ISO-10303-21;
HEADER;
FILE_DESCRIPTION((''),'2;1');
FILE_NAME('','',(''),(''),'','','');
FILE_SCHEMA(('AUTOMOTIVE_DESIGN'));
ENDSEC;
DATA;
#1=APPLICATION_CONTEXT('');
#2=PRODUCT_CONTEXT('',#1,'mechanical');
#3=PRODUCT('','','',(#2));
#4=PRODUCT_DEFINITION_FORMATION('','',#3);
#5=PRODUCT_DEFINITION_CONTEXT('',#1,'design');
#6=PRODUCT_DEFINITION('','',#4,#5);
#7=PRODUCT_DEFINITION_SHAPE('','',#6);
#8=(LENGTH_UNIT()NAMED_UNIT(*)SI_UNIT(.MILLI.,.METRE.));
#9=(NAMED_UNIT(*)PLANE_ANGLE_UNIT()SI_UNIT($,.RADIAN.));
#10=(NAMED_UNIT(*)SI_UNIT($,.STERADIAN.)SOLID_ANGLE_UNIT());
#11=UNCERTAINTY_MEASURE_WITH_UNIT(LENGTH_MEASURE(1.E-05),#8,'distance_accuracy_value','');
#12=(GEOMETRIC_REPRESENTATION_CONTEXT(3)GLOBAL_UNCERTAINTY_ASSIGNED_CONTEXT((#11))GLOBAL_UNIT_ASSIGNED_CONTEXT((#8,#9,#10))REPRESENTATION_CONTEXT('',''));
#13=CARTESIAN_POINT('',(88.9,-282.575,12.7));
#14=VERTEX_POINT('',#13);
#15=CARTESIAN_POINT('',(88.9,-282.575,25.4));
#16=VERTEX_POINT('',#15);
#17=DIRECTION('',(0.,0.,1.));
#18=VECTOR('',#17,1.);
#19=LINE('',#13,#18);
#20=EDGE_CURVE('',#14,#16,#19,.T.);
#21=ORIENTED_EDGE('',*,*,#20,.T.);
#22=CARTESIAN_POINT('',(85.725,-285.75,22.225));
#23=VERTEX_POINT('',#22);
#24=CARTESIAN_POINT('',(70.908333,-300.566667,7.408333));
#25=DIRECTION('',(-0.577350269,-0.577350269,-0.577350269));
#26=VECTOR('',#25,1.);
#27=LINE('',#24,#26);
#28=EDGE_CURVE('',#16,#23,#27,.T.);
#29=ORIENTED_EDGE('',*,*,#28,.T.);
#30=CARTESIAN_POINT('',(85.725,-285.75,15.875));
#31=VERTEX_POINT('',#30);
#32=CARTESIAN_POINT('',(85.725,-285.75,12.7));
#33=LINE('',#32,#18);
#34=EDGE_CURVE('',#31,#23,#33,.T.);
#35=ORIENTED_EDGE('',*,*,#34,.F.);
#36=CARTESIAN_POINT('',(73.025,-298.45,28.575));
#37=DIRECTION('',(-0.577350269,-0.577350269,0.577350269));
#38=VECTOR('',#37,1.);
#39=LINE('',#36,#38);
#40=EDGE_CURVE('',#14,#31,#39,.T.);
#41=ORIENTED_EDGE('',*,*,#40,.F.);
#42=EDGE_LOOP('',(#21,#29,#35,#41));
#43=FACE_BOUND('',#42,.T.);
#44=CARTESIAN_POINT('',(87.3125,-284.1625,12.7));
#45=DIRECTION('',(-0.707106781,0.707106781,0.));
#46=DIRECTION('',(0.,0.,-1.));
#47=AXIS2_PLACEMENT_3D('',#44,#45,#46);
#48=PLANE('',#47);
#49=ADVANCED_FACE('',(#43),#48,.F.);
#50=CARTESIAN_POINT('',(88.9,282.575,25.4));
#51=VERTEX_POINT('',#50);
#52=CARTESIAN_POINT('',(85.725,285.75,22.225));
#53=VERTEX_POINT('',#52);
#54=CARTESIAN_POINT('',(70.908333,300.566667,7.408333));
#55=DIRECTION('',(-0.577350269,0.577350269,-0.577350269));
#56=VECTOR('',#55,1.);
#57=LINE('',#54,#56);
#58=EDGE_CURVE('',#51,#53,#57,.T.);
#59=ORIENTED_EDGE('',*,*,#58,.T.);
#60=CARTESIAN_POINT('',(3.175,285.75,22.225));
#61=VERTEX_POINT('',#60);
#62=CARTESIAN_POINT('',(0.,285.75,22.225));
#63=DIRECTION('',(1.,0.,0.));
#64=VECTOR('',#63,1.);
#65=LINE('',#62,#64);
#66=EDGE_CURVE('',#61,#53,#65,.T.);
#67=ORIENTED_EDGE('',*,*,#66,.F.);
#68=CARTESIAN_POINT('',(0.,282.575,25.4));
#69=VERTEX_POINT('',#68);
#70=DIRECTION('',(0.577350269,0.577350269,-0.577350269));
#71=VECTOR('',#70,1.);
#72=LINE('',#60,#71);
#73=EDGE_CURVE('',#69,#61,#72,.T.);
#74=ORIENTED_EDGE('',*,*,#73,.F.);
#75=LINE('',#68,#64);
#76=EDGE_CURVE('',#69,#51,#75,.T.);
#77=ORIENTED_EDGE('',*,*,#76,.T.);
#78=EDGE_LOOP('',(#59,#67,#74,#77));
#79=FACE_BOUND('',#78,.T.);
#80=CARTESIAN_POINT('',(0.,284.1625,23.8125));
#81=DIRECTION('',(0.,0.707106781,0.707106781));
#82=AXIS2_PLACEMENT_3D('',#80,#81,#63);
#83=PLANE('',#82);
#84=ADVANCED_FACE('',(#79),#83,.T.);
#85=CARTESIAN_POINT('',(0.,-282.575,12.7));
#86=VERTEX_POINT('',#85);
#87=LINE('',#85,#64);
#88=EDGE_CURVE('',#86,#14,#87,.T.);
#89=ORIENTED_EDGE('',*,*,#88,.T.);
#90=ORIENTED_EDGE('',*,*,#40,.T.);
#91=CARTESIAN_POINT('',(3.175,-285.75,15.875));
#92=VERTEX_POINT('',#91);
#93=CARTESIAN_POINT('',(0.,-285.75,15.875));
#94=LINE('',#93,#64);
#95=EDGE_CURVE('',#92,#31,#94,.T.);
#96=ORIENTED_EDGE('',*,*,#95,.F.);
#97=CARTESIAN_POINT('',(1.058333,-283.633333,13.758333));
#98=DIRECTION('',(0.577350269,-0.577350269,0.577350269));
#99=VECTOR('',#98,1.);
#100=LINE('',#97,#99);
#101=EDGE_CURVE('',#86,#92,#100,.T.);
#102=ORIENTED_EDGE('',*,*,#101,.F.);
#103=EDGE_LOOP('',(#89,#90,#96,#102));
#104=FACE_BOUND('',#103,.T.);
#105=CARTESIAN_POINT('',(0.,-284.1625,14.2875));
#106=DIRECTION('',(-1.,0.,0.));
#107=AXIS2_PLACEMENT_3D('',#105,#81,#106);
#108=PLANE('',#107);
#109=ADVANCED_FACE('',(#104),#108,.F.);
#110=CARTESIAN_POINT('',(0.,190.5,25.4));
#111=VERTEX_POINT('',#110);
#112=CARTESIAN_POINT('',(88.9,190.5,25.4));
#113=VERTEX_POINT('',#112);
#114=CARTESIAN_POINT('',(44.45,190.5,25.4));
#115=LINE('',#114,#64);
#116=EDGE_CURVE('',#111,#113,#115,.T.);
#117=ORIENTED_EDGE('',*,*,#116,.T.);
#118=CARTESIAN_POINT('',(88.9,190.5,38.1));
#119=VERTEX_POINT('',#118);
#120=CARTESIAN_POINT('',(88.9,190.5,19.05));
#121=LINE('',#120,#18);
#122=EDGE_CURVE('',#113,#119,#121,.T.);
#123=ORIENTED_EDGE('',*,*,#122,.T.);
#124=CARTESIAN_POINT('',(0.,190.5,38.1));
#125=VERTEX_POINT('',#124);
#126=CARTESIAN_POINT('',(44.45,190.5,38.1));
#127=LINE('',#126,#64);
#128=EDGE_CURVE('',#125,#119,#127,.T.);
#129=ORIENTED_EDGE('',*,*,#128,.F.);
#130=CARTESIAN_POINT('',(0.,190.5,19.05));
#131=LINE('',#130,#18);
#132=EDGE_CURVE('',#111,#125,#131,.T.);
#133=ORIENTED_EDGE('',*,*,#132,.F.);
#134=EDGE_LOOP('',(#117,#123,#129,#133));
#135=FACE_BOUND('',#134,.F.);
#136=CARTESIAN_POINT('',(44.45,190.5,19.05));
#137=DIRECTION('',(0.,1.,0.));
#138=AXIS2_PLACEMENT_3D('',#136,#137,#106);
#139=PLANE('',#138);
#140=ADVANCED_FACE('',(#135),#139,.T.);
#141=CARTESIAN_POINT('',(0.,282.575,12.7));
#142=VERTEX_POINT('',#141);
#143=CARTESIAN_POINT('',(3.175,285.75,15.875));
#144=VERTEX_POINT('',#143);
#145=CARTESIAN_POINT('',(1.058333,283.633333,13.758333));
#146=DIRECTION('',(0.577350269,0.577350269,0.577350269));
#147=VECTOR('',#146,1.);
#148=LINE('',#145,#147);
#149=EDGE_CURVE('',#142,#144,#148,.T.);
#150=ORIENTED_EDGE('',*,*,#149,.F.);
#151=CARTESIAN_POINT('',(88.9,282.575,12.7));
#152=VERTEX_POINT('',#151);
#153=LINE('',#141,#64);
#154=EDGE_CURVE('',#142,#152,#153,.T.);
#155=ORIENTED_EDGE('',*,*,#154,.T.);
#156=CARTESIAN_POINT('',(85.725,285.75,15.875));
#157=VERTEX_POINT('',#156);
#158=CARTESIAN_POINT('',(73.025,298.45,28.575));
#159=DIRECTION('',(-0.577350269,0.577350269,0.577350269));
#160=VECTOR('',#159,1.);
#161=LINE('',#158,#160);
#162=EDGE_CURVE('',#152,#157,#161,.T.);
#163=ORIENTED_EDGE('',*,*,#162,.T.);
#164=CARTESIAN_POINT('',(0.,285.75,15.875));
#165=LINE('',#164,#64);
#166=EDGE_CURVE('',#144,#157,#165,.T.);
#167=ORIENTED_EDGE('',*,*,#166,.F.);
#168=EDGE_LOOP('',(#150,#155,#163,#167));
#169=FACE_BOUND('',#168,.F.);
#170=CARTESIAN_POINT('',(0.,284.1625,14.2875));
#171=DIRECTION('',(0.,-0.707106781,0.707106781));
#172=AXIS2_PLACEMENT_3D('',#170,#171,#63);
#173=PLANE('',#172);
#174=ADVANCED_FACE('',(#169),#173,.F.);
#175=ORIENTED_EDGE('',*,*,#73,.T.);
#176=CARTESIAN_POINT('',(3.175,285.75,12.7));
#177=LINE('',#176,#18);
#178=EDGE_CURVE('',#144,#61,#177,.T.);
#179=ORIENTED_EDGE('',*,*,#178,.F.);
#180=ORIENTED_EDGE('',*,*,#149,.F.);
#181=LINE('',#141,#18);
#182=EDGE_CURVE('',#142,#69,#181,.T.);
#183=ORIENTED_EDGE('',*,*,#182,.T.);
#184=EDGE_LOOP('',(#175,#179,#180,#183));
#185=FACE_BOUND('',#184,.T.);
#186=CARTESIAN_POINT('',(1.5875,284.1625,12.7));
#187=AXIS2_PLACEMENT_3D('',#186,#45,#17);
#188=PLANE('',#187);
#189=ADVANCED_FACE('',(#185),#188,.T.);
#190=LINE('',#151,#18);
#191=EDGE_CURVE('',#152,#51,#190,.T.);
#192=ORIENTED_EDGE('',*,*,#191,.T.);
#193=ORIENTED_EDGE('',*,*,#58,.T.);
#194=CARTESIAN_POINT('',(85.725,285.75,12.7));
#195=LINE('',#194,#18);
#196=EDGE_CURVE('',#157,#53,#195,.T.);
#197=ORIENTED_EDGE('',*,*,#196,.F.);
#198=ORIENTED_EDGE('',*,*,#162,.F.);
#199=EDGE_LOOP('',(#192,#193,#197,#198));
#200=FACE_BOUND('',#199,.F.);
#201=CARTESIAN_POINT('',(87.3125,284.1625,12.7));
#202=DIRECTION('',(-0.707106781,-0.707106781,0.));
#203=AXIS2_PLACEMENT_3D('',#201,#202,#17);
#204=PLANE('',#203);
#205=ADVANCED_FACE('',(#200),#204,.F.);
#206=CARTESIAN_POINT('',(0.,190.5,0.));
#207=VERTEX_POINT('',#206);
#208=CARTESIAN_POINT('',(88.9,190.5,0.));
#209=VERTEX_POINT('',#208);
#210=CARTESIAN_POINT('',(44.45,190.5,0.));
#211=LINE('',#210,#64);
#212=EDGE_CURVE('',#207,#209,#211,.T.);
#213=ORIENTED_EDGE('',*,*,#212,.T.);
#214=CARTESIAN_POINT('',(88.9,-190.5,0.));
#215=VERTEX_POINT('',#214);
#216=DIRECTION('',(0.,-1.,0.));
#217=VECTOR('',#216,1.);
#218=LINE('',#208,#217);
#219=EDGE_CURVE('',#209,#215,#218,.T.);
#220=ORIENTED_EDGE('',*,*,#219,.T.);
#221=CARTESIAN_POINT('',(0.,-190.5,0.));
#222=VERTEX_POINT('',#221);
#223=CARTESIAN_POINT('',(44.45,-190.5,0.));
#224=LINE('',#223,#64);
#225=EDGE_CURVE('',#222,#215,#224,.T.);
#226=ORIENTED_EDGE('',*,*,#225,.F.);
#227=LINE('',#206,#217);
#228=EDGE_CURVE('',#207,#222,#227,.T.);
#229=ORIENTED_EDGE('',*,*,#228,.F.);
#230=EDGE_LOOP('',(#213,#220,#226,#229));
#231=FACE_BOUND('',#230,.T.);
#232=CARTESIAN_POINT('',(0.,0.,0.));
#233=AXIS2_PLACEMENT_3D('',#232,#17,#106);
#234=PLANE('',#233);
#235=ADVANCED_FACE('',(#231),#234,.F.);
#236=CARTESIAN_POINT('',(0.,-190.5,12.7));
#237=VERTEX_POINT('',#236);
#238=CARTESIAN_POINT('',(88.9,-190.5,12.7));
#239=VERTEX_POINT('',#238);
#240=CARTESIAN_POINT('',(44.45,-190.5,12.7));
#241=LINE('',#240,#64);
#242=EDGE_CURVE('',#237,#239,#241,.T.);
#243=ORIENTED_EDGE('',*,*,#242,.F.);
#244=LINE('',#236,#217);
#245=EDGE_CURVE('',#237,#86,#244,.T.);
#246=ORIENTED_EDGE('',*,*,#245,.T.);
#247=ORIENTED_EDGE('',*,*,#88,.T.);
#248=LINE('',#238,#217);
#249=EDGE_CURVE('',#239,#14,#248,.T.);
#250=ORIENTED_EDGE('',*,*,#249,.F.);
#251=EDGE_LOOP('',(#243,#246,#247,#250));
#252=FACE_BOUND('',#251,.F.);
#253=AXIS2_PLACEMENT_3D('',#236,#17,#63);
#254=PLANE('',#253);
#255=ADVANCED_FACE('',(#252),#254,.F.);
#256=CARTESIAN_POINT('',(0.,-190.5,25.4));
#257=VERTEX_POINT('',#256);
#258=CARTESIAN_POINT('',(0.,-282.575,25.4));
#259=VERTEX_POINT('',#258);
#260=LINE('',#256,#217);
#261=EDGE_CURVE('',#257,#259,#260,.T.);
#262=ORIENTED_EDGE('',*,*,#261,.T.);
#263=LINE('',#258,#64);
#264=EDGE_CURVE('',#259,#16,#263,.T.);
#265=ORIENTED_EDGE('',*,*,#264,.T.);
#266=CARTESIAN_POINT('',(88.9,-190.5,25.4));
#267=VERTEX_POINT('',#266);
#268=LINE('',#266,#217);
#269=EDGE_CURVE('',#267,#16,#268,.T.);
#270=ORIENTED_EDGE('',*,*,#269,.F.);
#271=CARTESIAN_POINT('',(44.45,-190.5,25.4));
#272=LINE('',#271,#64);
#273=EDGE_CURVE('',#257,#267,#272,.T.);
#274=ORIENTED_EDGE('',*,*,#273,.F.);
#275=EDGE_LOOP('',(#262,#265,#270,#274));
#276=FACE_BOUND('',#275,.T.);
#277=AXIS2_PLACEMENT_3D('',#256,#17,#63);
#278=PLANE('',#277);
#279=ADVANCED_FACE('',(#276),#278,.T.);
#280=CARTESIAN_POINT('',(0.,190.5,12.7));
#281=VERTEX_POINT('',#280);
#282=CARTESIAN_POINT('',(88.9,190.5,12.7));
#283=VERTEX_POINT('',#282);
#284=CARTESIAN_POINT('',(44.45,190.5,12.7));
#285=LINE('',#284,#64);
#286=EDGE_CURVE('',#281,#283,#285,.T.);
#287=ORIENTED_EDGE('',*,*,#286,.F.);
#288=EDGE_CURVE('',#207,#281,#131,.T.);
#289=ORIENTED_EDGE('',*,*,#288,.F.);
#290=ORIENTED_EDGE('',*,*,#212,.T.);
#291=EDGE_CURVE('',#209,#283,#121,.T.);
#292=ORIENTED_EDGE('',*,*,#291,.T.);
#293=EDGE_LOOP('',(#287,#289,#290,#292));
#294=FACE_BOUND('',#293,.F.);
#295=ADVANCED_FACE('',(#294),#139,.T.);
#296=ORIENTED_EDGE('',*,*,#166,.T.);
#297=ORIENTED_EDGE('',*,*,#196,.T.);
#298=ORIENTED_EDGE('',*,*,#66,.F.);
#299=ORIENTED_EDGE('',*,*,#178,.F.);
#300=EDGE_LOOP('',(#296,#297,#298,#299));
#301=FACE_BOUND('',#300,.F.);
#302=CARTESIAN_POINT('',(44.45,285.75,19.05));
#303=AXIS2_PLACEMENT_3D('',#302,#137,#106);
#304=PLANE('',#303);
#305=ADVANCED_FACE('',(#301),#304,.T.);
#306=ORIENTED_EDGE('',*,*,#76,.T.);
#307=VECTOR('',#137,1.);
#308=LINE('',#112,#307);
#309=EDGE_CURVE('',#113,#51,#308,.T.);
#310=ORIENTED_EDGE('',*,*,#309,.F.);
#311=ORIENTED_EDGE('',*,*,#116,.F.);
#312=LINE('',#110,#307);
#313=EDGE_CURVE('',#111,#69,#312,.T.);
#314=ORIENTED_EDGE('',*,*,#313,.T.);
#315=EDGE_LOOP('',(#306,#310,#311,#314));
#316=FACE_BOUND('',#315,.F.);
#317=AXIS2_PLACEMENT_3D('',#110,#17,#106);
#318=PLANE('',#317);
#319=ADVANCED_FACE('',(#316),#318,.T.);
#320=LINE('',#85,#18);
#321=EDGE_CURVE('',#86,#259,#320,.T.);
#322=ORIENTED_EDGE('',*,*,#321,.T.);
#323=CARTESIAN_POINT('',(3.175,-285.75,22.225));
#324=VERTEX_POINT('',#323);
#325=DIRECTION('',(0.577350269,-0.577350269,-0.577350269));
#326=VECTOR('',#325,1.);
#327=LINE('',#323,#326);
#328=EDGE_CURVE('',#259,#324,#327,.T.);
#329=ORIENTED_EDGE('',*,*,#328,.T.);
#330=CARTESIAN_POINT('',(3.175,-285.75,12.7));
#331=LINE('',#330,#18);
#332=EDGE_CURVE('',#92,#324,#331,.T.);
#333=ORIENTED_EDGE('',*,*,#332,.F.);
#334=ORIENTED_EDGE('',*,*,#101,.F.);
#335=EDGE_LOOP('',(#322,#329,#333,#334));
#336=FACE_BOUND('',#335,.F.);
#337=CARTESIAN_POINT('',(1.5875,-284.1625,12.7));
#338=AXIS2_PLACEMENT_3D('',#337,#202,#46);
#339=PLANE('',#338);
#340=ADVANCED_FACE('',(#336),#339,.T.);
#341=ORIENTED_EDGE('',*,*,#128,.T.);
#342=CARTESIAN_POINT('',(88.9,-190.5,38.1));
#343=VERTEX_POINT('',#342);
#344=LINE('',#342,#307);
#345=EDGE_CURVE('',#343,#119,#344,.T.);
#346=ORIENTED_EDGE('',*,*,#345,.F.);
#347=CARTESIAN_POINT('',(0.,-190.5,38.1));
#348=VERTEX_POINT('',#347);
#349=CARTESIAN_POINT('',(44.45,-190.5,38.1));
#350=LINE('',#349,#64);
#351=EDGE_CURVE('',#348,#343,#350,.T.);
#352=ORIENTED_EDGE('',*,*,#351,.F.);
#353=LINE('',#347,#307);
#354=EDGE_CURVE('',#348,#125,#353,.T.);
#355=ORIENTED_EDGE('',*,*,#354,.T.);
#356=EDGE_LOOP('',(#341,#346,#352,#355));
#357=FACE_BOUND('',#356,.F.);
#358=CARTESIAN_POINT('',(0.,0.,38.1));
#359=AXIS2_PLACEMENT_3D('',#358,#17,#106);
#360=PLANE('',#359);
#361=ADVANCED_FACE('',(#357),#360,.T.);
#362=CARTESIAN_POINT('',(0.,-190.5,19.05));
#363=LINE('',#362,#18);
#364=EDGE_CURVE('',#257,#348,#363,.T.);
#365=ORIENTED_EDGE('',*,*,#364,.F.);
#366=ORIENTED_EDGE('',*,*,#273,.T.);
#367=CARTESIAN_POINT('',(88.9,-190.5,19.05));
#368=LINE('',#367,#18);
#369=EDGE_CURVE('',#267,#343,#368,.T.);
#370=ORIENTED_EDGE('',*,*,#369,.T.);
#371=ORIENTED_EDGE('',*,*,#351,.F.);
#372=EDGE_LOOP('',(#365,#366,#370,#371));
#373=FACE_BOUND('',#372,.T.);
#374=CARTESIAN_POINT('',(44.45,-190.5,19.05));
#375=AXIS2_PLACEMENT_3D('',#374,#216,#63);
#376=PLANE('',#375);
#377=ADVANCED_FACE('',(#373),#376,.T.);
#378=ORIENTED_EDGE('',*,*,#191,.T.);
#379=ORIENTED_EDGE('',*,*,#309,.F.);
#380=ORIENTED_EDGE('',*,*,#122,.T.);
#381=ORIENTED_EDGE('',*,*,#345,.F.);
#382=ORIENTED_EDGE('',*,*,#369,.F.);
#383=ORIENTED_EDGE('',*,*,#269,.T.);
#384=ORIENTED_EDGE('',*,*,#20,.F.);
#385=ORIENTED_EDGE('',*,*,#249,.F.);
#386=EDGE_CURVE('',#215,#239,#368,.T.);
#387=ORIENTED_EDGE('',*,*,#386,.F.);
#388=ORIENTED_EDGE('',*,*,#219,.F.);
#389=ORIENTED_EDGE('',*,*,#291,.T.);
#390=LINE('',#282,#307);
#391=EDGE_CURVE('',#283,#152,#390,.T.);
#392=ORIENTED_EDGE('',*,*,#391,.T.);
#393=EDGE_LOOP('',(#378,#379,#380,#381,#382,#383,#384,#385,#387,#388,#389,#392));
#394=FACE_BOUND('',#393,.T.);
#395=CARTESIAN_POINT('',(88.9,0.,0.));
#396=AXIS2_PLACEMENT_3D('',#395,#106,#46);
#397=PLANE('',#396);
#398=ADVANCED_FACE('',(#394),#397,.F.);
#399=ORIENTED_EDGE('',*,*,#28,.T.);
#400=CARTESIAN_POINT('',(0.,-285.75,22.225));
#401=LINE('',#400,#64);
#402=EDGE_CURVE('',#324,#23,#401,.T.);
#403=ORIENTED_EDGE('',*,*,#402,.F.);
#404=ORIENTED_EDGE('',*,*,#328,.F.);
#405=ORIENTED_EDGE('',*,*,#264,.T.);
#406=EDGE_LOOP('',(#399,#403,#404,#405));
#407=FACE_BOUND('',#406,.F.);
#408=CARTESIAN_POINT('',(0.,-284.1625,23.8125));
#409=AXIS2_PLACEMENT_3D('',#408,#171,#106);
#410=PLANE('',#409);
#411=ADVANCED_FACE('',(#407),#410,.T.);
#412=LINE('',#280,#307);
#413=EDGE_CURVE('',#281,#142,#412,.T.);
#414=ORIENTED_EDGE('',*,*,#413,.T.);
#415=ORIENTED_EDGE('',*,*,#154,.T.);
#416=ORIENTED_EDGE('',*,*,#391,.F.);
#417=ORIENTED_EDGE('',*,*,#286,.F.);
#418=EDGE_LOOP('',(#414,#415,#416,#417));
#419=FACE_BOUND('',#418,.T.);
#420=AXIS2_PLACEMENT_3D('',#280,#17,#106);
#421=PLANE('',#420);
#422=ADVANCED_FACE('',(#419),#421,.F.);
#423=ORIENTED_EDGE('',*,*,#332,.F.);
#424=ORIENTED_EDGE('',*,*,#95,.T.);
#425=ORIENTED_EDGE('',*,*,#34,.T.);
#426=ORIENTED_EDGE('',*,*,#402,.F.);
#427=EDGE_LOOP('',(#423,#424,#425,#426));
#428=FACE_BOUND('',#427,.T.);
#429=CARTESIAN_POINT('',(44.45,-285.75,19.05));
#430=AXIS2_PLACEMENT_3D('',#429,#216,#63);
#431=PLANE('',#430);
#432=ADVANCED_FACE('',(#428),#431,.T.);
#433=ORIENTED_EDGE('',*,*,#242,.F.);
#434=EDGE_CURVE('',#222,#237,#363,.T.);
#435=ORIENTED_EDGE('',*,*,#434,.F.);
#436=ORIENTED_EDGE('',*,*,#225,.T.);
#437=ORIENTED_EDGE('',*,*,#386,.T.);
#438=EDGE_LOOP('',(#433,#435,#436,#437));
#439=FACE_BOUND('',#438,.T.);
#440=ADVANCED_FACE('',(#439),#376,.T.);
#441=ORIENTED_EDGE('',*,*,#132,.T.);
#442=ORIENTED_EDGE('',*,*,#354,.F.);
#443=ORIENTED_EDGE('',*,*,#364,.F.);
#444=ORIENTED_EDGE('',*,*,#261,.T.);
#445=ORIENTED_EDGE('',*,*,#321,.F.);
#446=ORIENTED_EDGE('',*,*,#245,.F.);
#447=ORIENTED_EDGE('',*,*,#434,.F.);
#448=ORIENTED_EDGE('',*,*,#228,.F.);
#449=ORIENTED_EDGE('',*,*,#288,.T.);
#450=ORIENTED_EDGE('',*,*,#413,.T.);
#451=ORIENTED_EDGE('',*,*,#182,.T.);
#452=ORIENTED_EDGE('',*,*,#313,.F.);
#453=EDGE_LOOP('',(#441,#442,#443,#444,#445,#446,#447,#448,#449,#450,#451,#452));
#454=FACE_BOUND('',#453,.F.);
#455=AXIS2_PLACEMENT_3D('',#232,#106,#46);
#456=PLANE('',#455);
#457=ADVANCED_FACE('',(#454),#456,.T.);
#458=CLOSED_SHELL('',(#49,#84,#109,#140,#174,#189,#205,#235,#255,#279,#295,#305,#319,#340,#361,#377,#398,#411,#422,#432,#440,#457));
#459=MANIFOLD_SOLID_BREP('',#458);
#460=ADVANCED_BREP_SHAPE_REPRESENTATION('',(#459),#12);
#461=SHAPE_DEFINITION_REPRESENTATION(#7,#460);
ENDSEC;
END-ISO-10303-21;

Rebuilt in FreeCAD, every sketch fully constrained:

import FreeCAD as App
import Part
import Sketcher
Q = App.Units.Quantity


def edges_at(feature, points):
    """Names of the edges that pass closest to the given points."""
    edges = feature.Shape.Edges
    near = lambda p: min(range(len(edges)), key=lambda i: edges[i].distToShape(Part.Vertex(*p))[0])
    return sorted({f"Edge{near(p) + 1}" for p in points})


def add_polygon(sketch, points):
    """Adds a closed chain of lines whose ends are joined by coincident constraints."""
    first, n = sketch.GeometryCount, len(points)
    for a, b in zip(points, points[1:] + points[:1]):
        sketch.addGeometry(Part.LineSegment(App.Vector(*a, 0), App.Vector(*b, 0)), False)
    for i in range(n):
        sketch.addConstraint(Sketcher.Constraint("Coincident", first + i, 2, first + (i + 1) % n, 1))

doc = App.newDocument("Part")
body = doc.addObject("PartDesign::Body", "Body")

sketch1 = body.newObject("Sketcher::SketchObject", "Sketch")
sketch1.AttachmentSupport = (doc.getObject("XZ_Plane"), [""])
sketch1.MapMode = "FlatFace"
add_polygon(sketch1, [(0, 38), (0, 0), (89, 0), (89, 38)])
sketch1.addConstraint([
    Sketcher.Constraint("Vertical", 0),
    Sketcher.Constraint("Horizontal", 1),
    Sketcher.Constraint("Vertical", 2),
    Sketcher.Constraint("Horizontal", 3),
    Sketcher.Constraint("Coincident", 0, 2, -1, 1),
    Sketcher.Constraint("DistanceX", 1, 1, 1, 2, Q("3.5 in")),
    Sketcher.Constraint("DistanceY", 0, 2, 0, 1, Q("1.5 in")),
])
pad1 = body.newObject("PartDesign::Pad", "Pad")
pad1.Profile = sketch1
pad1.Length = Q("7.5 in")

sketch2 = body.newObject("Sketcher::SketchObject", "Sketch001")
sketch2.AttachmentSupport = (doc.getObject("XZ_Plane"), [""])
sketch2.MapMode = "FlatFace"
sketch2.AttachmentOffset = App.Placement(App.Vector(0, 0, 7.5 * 25.4), App.Rotation())
add_polygon(sketch2, [(0, 25), (0, 13), (89, 13), (89, 25)])
sketch2.addConstraint([
    Sketcher.Constraint("Vertical", 0),
    Sketcher.Constraint("Horizontal", 1),
    Sketcher.Constraint("Vertical", 2),
    Sketcher.Constraint("Horizontal", 3),
    Sketcher.Constraint("PointOnObject", 0, 2, -2),
    Sketcher.Constraint("DistanceX", 1, 1, 1, 2, Q("3.5 in")),
    Sketcher.Constraint("DistanceY", 0, 2, 0, 1, Q("0.5 in")),
    Sketcher.Constraint("DistanceY", -1, 1, 2, 2, Q("1 in")),
])
pad2 = body.newObject("PartDesign::Pad", "Pad001")
pad2.Profile = sketch2
pad2.Length = Q("3.75 in")
doc.recompute()

chamfer = body.newObject("PartDesign::Chamfer", "Chamfer")
chamfer.Base = (pad2, edges_at(pad2, [
    (44.45, -285.75, 25.4),
    (0, -285.75, 19.05),
    (44.45, -285.75, 12.7),
    (88.9, -285.75, 19.05),
]))
chamfer.Size = Q("0.125 in")
body2 = doc.addObject("PartDesign::Body", "Body001")
doc.recompute()

body2.BaseFeature = body
doc.recompute()

mirroring = doc.addObject("Part::Mirroring", "Mirroring")
mirroring.Source = body
mirroring.Base = App.Vector(44.45, 0, 19.05)
mirroring.Normal = App.Vector(0, 1, 0)
body3 = doc.addObject("PartDesign::Body", "Body002")
body3.BaseFeature = mirroring
boolean = body2.newObject("PartDesign::Boolean", "Boolean")
boolean.Type = "Fuse"
boolean.addObjects([body3])
doc.recompute()
mirroring.Visibility = False

doc.recompute()
